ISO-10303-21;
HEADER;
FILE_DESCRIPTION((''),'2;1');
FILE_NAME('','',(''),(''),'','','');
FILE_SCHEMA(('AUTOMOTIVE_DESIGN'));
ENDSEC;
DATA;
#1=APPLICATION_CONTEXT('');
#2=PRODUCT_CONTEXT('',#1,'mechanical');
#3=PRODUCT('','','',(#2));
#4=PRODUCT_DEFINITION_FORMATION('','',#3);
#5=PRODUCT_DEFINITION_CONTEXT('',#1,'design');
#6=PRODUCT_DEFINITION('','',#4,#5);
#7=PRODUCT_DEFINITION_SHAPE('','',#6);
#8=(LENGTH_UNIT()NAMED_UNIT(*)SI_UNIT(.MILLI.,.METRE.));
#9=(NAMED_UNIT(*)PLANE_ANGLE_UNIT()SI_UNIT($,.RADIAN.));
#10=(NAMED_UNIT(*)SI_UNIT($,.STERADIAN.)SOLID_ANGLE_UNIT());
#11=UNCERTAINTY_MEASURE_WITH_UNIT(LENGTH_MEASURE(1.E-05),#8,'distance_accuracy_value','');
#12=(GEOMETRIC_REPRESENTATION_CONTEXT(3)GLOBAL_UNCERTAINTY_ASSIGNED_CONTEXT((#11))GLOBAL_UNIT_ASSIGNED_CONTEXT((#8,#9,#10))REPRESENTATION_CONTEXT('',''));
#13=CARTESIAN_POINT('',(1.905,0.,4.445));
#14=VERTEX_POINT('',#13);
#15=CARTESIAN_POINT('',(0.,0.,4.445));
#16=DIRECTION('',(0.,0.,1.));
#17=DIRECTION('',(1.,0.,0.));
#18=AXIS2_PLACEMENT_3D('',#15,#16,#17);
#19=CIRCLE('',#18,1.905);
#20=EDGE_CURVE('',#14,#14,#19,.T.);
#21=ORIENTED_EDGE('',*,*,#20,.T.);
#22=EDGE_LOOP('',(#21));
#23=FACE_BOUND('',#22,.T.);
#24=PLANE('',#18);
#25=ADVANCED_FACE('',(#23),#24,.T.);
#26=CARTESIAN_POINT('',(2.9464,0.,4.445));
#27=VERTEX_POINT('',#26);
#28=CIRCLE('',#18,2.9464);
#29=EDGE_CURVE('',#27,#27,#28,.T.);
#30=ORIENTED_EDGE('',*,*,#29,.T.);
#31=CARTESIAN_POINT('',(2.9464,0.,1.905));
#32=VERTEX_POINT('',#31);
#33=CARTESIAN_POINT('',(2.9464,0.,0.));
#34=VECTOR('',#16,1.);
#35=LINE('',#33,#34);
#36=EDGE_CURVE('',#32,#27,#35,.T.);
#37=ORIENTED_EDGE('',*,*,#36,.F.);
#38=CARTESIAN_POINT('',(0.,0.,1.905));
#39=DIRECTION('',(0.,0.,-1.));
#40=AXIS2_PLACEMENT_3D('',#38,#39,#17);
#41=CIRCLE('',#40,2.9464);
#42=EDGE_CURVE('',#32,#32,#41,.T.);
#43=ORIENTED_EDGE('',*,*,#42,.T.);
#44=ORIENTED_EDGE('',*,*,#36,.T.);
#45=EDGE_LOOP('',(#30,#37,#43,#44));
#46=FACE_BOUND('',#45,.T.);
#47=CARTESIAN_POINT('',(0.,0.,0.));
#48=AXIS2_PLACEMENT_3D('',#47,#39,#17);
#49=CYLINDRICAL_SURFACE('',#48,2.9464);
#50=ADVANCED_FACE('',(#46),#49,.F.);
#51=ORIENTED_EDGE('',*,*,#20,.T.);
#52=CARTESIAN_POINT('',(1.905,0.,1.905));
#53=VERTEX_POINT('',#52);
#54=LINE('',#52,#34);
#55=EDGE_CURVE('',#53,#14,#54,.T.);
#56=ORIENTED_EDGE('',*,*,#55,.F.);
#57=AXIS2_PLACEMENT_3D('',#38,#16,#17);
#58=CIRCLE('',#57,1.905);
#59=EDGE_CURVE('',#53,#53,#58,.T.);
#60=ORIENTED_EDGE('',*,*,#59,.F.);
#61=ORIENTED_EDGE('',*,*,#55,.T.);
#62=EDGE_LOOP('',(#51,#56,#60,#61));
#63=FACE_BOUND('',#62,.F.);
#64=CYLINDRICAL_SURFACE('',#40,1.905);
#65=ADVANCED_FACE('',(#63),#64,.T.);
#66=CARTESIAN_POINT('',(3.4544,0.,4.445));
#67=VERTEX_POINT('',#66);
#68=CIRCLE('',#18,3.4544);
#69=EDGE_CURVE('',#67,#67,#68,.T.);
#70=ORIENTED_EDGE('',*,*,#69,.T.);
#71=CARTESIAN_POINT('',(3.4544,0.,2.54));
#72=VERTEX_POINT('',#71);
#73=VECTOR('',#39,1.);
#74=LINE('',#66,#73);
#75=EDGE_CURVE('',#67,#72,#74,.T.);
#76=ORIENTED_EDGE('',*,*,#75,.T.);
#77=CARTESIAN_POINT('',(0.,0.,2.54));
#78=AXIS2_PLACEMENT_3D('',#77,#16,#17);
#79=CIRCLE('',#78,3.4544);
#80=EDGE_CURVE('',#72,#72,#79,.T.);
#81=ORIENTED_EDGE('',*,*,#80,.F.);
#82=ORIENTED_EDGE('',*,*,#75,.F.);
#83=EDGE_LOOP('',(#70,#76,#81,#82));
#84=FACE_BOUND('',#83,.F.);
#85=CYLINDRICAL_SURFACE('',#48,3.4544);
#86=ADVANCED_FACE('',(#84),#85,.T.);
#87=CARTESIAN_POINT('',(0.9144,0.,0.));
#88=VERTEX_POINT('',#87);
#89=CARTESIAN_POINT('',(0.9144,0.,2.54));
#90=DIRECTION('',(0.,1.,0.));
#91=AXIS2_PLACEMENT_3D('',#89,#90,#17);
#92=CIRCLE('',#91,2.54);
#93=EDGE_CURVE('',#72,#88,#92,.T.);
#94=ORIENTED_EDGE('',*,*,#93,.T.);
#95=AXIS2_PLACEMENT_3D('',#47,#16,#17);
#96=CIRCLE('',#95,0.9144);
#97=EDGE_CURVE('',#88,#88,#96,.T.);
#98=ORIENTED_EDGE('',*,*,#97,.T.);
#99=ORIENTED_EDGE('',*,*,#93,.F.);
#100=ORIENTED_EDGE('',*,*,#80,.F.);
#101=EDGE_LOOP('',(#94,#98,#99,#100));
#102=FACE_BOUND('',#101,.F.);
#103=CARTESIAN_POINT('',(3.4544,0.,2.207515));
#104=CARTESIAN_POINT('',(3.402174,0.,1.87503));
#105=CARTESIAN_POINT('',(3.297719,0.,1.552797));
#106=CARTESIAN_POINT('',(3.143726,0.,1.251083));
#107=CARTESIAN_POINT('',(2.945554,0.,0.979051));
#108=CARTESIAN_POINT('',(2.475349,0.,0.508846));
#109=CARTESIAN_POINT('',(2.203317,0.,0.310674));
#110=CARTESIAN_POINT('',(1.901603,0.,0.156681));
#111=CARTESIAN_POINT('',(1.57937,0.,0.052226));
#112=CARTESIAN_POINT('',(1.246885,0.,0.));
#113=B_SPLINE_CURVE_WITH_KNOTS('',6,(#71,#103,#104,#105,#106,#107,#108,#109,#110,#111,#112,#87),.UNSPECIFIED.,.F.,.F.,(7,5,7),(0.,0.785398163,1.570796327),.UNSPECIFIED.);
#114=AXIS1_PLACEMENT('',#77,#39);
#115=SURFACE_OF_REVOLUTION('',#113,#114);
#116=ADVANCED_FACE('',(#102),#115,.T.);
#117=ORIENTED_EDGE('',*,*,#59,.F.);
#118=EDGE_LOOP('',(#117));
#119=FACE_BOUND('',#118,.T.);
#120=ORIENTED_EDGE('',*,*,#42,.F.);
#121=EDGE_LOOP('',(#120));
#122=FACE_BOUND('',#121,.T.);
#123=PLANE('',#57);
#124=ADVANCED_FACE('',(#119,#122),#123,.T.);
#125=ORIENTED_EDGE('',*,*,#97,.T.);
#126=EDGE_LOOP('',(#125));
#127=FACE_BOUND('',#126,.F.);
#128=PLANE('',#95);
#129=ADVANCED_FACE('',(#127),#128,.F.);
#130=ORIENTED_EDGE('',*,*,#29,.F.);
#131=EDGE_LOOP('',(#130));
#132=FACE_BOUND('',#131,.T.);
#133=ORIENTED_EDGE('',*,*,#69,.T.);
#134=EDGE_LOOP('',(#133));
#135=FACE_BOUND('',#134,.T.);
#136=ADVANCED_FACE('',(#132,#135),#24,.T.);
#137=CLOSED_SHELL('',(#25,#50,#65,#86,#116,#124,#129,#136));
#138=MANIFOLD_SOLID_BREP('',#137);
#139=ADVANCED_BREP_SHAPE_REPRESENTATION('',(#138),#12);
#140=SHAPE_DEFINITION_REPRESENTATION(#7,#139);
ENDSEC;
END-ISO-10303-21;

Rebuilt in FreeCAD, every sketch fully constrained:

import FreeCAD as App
import Part
import Sketcher
from FreeCAD import Vector
Q = App.Units.Quantity


def edges_at(feature, points):
    """Names of the edges that pass closest to the given points."""
    edges = feature.Shape.Edges
    near = lambda p: min(range(len(edges)), key=lambda i: edges[i].distToShape(Part.Vertex(*p))[0])
    return sorted({f"Edge{near(p) + 1}" for p in points})

doc = App.newDocument("Part")
body = doc.addObject("PartDesign::Body", "Body")

sketch1 = body.newObject("Sketcher::SketchObject", "Sketch")
sketch1.AttachmentSupport = (doc.getObject("XY_Plane"), [""])
sketch1.MapMode = "FlatFace"
sketch1.addGeometry([
    Part.Circle(Vector(0, 0, 0), Vector(0, 0, 1), 3.5),
    Part.Circle(Vector(0, 0, 0), Vector(0, 0, 1), 2.9),
], False)
sketch1.addConstraint([
    Sketcher.Constraint("Coincident", 0, 3, -1, 1),
    Sketcher.Constraint("Coincident", 1, 3, -1, 1),
    Sketcher.Constraint("Diameter", 0, Q("0.272 in")),
    Sketcher.Constraint("Diameter", 1, Q("0.232 in")),
])
pad1 = body.newObject("PartDesign::Pad", "Pad")
pad1.Profile = sketch1
pad1.Length = Q("0.175 in")

sketch2 = body.newObject("Sketcher::SketchObject", "Sketch001")
sketch2.AttachmentSupport = (doc.getObject("XY_Plane"), [""])
sketch2.MapMode = "FlatFace"
sketch2.addGeometry(Part.Circle(Vector(0, 0, 0), Vector(0, 0, 1), 3.5), False)
sketch2.addConstraint([
    Sketcher.Constraint("Coincident", 0, 3, -1, 1),
    Sketcher.Constraint("Diameter", 0, Q("0.272 in")),
])
pad2 = body.newObject("PartDesign::Pad", "Pad001")
pad2.Profile = sketch2
pad2.Length = Q("0.075 in")

sketch3 = body.newObject("Sketcher::SketchObject", "Sketch002")
sketch3.AttachmentSupport = (doc.getObject("XY_Plane"), [""])
sketch3.MapMode = "FlatFace"
sketch3.AttachmentOffset = App.Placement(Vector(0, 0, 0.075 * 25.4), App.Rotation())
sketch3.addGeometry(Part.Circle(Vector(0, 0, 0), Vector(0, 0, 1), 1.9), False)
sketch3.addConstraint([
    Sketcher.Constraint("Coincident", 0, 3, -1, 1),
    Sketcher.Constraint("Diameter", 0, Q("0.15 in")),
])
pad3 = body.newObject("PartDesign::Pad", "Pad002")
pad3.Profile = sketch3
pad3.Length = Q("0.1 in")
doc.recompute()

fillet = body.newObject("PartDesign::Fillet", "Fillet")
fillet.Base = (pad3, edges_at(pad3, [(-3.454, 0, 0)]))
fillet.Radius = Q("0.1 in")

doc.recompute()
